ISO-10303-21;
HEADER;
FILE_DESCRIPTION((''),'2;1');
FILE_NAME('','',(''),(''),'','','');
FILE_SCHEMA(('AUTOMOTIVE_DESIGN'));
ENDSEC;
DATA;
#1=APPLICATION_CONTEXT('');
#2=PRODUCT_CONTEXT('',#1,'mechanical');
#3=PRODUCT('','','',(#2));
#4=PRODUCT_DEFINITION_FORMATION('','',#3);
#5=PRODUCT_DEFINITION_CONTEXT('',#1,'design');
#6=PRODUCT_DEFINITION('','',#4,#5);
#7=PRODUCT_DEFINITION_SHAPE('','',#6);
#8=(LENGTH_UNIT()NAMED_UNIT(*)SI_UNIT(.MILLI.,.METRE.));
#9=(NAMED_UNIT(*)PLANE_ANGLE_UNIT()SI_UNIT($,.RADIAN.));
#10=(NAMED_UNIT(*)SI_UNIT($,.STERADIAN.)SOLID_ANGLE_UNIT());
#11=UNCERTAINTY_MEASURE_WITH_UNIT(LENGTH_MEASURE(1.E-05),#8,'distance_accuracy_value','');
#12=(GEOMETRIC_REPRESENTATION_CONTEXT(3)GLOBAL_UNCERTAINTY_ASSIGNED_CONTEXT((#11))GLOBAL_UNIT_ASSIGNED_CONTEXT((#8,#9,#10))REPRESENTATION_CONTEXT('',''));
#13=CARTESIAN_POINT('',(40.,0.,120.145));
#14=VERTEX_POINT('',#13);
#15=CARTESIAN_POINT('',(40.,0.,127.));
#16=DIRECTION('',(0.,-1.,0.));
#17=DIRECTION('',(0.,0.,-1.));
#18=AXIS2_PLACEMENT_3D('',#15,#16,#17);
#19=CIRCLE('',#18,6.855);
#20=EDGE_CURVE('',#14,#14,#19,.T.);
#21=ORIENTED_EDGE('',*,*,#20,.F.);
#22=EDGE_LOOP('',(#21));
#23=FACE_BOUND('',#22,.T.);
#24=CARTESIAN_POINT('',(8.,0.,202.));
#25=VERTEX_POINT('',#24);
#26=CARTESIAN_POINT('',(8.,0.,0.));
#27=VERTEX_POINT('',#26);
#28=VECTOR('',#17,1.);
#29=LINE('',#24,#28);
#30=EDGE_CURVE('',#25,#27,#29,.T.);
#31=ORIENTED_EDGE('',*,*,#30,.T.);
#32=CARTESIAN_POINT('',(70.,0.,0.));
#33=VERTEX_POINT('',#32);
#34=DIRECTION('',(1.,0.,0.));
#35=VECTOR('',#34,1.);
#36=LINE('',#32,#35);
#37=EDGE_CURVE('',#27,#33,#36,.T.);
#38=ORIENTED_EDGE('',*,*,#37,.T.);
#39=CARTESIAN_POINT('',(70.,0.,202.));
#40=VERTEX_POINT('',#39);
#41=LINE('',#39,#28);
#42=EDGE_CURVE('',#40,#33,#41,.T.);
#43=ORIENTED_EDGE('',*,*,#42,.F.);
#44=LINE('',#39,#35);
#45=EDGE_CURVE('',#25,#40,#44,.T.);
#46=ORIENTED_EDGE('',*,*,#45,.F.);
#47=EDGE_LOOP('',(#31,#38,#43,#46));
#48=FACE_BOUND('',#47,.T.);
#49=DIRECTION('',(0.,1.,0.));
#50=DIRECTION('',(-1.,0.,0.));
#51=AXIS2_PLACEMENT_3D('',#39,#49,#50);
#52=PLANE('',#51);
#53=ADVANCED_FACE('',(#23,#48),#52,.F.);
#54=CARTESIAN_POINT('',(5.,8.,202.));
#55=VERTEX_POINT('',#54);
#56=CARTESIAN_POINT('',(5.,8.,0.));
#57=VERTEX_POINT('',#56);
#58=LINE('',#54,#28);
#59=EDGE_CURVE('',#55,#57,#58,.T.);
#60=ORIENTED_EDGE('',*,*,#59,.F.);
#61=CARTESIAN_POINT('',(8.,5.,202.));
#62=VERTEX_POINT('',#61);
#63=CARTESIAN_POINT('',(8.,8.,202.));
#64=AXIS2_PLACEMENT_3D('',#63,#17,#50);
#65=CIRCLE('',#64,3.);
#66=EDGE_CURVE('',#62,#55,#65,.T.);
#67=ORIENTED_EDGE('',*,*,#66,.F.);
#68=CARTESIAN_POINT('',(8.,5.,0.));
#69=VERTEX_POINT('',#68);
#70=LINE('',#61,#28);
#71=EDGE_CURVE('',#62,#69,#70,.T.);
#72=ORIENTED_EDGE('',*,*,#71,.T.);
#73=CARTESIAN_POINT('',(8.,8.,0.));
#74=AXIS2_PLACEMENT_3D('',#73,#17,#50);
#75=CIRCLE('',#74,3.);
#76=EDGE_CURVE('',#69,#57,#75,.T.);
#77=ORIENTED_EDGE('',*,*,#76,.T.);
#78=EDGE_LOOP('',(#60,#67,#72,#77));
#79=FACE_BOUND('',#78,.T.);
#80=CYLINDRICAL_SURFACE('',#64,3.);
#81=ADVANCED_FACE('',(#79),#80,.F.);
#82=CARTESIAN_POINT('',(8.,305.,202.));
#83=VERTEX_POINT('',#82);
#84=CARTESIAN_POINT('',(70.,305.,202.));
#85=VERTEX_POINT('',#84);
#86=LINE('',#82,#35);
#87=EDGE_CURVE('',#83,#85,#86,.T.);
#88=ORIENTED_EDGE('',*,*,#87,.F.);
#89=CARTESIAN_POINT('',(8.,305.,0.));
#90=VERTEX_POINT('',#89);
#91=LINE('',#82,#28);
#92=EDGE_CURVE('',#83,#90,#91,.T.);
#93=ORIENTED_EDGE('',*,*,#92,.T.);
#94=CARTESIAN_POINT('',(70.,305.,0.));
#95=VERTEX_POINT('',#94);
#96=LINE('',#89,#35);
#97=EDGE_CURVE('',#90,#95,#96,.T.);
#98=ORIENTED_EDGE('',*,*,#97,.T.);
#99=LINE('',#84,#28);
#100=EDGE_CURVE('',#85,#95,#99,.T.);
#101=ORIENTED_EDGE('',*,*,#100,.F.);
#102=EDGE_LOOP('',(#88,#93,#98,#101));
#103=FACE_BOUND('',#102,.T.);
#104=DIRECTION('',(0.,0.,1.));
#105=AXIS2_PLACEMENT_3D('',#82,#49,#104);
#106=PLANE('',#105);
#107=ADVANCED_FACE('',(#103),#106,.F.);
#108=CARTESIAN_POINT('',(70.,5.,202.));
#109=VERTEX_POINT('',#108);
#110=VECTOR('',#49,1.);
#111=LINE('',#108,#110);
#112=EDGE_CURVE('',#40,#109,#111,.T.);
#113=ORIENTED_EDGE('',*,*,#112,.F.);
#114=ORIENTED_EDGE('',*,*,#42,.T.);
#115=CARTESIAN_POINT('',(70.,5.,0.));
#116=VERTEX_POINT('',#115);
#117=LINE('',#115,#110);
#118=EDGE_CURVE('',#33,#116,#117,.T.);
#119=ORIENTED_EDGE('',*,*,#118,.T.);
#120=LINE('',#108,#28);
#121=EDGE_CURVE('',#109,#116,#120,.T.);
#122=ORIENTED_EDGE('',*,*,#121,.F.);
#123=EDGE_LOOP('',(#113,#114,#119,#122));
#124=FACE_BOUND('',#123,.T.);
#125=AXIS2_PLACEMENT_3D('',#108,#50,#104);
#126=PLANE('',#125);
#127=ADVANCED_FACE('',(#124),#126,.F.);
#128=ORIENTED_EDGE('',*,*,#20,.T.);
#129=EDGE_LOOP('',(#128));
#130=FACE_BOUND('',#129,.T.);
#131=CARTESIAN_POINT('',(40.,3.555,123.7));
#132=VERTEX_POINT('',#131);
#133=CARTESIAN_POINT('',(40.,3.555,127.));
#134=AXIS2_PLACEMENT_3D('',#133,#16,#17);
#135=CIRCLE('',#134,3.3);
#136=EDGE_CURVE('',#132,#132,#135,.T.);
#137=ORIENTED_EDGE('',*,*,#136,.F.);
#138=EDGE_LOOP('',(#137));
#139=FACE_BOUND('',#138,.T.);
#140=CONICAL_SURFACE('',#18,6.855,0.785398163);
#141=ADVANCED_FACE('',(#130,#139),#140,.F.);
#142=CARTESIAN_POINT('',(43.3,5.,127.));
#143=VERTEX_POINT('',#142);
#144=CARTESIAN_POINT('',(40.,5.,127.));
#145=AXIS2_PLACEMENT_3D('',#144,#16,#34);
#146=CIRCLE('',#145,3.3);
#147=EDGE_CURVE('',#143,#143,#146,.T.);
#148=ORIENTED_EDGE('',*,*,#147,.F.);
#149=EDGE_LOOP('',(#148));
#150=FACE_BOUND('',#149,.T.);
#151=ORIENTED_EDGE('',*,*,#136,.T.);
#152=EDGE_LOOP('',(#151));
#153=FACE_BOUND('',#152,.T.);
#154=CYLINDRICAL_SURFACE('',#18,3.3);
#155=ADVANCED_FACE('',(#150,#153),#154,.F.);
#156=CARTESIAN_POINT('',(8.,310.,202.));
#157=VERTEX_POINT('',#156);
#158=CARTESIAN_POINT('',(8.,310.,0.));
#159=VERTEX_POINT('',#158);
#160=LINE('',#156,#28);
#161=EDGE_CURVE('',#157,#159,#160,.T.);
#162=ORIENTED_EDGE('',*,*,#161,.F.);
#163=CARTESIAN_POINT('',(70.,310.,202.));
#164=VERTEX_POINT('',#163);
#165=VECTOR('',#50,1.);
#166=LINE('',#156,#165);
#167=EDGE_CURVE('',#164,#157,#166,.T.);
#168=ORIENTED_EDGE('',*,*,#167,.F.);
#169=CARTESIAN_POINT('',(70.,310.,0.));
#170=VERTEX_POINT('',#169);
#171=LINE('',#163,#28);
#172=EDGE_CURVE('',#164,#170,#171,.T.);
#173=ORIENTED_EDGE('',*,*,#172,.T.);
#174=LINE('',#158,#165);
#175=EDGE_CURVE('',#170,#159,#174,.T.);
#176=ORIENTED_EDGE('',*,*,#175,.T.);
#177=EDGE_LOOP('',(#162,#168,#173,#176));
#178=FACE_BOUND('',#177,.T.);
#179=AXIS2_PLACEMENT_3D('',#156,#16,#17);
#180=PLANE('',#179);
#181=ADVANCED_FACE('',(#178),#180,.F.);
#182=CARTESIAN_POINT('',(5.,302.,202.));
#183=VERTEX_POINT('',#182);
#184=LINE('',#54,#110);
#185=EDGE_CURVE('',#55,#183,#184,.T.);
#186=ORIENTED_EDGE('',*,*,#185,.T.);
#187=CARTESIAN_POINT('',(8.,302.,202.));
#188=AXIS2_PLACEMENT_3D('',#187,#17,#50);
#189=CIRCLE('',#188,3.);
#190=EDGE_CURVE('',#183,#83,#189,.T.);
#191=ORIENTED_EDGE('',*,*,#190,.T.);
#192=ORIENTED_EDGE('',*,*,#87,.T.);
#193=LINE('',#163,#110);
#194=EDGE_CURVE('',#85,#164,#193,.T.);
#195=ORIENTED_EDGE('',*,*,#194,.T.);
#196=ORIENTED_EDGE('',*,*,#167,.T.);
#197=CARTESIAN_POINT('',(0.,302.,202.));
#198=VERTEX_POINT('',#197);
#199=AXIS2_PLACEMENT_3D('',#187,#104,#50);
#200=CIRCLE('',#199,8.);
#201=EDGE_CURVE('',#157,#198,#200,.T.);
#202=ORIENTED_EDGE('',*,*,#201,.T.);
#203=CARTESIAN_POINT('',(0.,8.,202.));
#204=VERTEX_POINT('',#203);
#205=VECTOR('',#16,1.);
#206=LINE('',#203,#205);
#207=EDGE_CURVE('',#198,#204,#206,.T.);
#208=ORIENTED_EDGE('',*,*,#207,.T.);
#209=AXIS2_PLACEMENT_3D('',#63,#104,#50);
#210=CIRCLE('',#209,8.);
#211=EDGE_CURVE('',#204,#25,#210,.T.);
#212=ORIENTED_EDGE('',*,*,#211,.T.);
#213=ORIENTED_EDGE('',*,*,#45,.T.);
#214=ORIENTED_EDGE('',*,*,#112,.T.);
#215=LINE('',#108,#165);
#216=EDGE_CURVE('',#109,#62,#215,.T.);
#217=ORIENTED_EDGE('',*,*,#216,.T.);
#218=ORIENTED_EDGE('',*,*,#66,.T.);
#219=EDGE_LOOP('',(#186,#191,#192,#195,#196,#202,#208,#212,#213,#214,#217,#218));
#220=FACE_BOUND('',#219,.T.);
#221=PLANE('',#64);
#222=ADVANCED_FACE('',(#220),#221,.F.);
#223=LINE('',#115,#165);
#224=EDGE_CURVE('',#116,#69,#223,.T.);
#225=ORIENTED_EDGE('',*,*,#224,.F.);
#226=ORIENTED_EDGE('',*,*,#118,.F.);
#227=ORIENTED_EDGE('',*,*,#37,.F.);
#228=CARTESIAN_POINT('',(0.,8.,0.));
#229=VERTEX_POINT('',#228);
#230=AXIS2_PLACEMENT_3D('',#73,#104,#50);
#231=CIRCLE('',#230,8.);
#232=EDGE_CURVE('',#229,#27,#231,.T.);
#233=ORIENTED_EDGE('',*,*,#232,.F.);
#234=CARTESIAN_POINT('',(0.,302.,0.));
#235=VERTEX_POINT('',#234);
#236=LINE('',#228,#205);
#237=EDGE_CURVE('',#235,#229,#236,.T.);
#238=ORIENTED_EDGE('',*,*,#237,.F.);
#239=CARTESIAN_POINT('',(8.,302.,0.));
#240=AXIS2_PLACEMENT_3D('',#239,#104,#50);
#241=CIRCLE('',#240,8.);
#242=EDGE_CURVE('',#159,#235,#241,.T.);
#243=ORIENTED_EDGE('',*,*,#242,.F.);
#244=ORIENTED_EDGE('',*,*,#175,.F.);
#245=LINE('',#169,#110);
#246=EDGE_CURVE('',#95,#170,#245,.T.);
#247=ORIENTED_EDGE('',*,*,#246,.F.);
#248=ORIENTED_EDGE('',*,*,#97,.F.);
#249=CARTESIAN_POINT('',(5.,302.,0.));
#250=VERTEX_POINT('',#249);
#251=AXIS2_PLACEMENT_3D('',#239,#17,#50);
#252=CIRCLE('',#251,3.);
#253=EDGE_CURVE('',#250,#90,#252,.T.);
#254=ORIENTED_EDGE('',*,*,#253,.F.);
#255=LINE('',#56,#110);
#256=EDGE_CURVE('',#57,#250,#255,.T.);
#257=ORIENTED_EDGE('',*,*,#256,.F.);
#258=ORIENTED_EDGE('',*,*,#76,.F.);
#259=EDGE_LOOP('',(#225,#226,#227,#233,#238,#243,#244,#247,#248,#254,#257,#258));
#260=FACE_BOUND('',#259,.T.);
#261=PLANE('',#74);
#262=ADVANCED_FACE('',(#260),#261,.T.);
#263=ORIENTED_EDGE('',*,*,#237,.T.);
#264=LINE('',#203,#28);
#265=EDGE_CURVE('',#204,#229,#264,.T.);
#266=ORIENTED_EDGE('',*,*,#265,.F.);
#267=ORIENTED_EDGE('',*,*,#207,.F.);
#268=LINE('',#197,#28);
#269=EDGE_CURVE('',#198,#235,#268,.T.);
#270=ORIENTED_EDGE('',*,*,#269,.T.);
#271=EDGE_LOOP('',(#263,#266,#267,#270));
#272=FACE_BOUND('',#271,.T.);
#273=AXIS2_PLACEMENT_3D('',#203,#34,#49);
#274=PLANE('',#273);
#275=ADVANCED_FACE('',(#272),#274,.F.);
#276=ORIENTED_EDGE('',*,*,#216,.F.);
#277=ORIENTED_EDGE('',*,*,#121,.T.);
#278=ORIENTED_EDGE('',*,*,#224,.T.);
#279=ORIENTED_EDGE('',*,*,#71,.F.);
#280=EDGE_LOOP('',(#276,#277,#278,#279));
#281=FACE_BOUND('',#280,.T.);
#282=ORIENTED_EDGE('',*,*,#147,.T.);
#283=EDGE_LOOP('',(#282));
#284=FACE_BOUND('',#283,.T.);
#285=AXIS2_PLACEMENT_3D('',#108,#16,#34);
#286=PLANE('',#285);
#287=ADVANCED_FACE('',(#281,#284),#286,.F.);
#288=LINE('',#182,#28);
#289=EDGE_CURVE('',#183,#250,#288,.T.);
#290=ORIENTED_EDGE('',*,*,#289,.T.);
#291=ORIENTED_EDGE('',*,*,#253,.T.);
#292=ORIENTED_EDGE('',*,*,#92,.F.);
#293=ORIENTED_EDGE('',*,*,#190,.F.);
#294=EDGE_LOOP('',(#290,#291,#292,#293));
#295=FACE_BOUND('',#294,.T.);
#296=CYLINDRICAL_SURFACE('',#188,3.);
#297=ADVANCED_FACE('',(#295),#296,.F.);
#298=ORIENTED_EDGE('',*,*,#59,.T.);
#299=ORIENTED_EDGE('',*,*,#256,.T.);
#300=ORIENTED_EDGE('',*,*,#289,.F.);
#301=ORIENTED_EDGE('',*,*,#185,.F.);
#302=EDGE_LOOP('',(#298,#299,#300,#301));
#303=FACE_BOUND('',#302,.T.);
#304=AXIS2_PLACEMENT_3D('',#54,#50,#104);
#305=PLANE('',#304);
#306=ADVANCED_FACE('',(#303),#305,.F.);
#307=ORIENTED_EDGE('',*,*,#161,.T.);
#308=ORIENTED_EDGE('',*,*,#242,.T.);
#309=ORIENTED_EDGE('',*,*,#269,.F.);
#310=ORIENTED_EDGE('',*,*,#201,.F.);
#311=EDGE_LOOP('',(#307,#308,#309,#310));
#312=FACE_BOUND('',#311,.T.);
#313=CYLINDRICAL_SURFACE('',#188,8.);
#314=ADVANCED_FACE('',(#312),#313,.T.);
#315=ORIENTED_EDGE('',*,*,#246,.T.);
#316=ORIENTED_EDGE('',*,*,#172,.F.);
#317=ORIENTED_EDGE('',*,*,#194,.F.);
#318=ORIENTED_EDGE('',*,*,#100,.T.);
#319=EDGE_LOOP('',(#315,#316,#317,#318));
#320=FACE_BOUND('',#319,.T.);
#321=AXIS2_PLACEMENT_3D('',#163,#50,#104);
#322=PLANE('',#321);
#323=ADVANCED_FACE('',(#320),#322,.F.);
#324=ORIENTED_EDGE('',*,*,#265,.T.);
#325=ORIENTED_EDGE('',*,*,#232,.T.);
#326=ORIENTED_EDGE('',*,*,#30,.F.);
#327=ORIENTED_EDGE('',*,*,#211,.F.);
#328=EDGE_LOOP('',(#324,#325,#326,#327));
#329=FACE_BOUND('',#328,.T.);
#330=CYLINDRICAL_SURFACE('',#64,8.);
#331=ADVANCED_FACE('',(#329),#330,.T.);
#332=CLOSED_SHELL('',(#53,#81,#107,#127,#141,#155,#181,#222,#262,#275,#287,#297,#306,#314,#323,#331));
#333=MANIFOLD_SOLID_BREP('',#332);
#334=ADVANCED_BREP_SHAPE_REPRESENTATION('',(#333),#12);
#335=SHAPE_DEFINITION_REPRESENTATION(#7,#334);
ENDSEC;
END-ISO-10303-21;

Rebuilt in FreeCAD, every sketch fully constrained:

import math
import FreeCAD as App
import Part
import Sketcher

V = App.Vector

doc = App.newDocument("Part")
body = doc.addObject("PartDesign::Body", "Body")

sketch1 = body.newObject("Sketcher::SketchObject", "Sketch")
sketch1.AttachmentSupport = (doc.getObject("XY_Plane"), [""])
sketch1.MapMode = "FlatFace"
sketch1.addGeometry(Part.LineSegment(V(8, 0, 0), V(70, 0, 0)), False)
sketch1.addGeometry(Part.LineSegment(V(70, 0, 0), V(70, 5, 0)), False)
sketch1.addGeometry(Part.LineSegment(V(70, 5, 0), V(8, 5, 0)), False)
sketch1.addGeometry(Part.ArcOfCircle(Part.Circle(V(8, 8, 0), V(0, 0, 1), 3), math.radians(180), math.radians(270)), False)
sketch1.addGeometry(Part.LineSegment(V(5, 8, 0), V(5, 302, 0)), False)
sketch1.addGeometry(Part.ArcOfCircle(Part.Circle(V(8, 302, 0), V(0, 0, 1), 3), math.radians(90), math.radians(180)), False)
sketch1.addGeometry(Part.LineSegment(V(8, 305, 0), V(70, 305, 0)), False)
sketch1.addGeometry(Part.LineSegment(V(70, 305, 0), V(70, 310, 0)), False)
sketch1.addGeometry(Part.LineSegment(V(70, 310, 0), V(8, 310, 0)), False)
sketch1.addGeometry(Part.ArcOfCircle(Part.Circle(V(8, 302, 0), V(0, 0, 1), 8), math.radians(90), math.radians(180)), False)
sketch1.addGeometry(Part.LineSegment(V(0, 302, 0), V(0, 8, 0)), False)
sketch1.addGeometry(Part.ArcOfCircle(Part.Circle(V(8, 8, 0), V(0, 0, 1), 8), math.radians(-180), math.radians(-90)), False)
sketch1.addConstraint(Sketcher.Constraint("Coincident", 0, 2, 1, 1))
sketch1.addConstraint(Sketcher.Constraint("Coincident", 1, 2, 2, 1))
sketch1.addConstraint(Sketcher.Constraint("Tangent", 2, 2, 3, 2))
sketch1.addConstraint(Sketcher.Constraint("Tangent", 3, 1, 4, 1))
sketch1.addConstraint(Sketcher.Constraint("Tangent", 4, 2, 5, 2))
sketch1.addConstraint(Sketcher.Constraint("Tangent", 5, 1, 6, 1))
sketch1.addConstraint(Sketcher.Constraint("Coincident", 6, 2, 7, 1))
sketch1.addConstraint(Sketcher.Constraint("Coincident", 7, 2, 8, 1))
sketch1.addConstraint(Sketcher.Constraint("Tangent", 8, 2, 9, 1))
sketch1.addConstraint(Sketcher.Constraint("Tangent", 9, 2, 10, 1))
sketch1.addConstraint(Sketcher.Constraint("Tangent", 10, 2, 11, 1))
sketch1.addConstraint(Sketcher.Constraint("Tangent", 11, 2, 0, 1))
sketch1.addConstraint(Sketcher.Constraint("Horizontal", 0))
sketch1.addConstraint(Sketcher.Constraint("Vertical", 1))
sketch1.addConstraint(Sketcher.Constraint("Horizontal", 2))
sketch1.addConstraint(Sketcher.Constraint("Vertical", 4))
sketch1.addConstraint(Sketcher.Constraint("Horizontal", 6))
sketch1.addConstraint(Sketcher.Constraint("Vertical", 7))
sketch1.addConstraint(Sketcher.Constraint("Horizontal", 8))
sketch1.addConstraint(Sketcher.Constraint("Vertical", 10))
sketch1.addConstraint(Sketcher.Constraint("Coincident", 9, 3, 5, 3))
sketch1.addConstraint(Sketcher.Constraint("Coincident", 11, 3, 3, 3))
sketch1.addConstraint(Sketcher.Constraint("Equal", 3, 5))
sketch1.addConstraint(Sketcher.Constraint("PointOnObject", 0, 2, -1))
sketch1.addConstraint(Sketcher.Constraint("PointOnObject", 9, 2, -2))
sketch1.addConstraint(Sketcher.Constraint("Vertical", 1, 2, 6, 2))
sketch1.addConstraint(Sketcher.Constraint("Radius", 3, 3.0))
sketch1.addConstraint(Sketcher.Constraint("Radius", 9, 8.0))
sketch1.addConstraint(Sketcher.Constraint("DistanceX", 0, 1, 0, 2, 62.0))
sketch1.addConstraint(Sketcher.Constraint("DistanceY", 4, 1, 4, 2, 294.0))
pad1 = body.newObject("PartDesign::Pad", "Pad")
pad1.Profile = sketch1
pad1.Length = 202

sketch2 = body.newObject("Sketcher::SketchObject", "Sketch001")
sketch2.AttachmentSupport = (doc.getObject("XZ_Plane"), [""])
sketch2.MapMode = "FlatFace"
sketch2.addGeometry(Part.Circle(V(40, 127, 0), V(0, 0, 1), 3.3), False)
sketch2.addConstraint(Sketcher.Constraint("Diameter", 0, 6.6))
sketch2.addConstraint(Sketcher.Constraint("DistanceX", -1, 1, 0, 3, 40.0))
sketch2.addConstraint(Sketcher.Constraint("DistanceY", -1, 1, 0, 3, 127.0))
doc.recompute()
hole = body.newObject("PartDesign::Hole", "Hole")
hole.Profile = sketch2
hole.ThreadType = "None"
hole.Diameter = 6.6
hole.DepthType = "Dimension"
hole.Depth = 10
hole.DrillPoint = "Angled"
hole.DrillPointAngle = 118
hole.HoleCutType = "Countersink"
hole.HoleCutDiameter = 13.71
hole.HoleCutCountersinkAngle = 90

doc.recompute()
